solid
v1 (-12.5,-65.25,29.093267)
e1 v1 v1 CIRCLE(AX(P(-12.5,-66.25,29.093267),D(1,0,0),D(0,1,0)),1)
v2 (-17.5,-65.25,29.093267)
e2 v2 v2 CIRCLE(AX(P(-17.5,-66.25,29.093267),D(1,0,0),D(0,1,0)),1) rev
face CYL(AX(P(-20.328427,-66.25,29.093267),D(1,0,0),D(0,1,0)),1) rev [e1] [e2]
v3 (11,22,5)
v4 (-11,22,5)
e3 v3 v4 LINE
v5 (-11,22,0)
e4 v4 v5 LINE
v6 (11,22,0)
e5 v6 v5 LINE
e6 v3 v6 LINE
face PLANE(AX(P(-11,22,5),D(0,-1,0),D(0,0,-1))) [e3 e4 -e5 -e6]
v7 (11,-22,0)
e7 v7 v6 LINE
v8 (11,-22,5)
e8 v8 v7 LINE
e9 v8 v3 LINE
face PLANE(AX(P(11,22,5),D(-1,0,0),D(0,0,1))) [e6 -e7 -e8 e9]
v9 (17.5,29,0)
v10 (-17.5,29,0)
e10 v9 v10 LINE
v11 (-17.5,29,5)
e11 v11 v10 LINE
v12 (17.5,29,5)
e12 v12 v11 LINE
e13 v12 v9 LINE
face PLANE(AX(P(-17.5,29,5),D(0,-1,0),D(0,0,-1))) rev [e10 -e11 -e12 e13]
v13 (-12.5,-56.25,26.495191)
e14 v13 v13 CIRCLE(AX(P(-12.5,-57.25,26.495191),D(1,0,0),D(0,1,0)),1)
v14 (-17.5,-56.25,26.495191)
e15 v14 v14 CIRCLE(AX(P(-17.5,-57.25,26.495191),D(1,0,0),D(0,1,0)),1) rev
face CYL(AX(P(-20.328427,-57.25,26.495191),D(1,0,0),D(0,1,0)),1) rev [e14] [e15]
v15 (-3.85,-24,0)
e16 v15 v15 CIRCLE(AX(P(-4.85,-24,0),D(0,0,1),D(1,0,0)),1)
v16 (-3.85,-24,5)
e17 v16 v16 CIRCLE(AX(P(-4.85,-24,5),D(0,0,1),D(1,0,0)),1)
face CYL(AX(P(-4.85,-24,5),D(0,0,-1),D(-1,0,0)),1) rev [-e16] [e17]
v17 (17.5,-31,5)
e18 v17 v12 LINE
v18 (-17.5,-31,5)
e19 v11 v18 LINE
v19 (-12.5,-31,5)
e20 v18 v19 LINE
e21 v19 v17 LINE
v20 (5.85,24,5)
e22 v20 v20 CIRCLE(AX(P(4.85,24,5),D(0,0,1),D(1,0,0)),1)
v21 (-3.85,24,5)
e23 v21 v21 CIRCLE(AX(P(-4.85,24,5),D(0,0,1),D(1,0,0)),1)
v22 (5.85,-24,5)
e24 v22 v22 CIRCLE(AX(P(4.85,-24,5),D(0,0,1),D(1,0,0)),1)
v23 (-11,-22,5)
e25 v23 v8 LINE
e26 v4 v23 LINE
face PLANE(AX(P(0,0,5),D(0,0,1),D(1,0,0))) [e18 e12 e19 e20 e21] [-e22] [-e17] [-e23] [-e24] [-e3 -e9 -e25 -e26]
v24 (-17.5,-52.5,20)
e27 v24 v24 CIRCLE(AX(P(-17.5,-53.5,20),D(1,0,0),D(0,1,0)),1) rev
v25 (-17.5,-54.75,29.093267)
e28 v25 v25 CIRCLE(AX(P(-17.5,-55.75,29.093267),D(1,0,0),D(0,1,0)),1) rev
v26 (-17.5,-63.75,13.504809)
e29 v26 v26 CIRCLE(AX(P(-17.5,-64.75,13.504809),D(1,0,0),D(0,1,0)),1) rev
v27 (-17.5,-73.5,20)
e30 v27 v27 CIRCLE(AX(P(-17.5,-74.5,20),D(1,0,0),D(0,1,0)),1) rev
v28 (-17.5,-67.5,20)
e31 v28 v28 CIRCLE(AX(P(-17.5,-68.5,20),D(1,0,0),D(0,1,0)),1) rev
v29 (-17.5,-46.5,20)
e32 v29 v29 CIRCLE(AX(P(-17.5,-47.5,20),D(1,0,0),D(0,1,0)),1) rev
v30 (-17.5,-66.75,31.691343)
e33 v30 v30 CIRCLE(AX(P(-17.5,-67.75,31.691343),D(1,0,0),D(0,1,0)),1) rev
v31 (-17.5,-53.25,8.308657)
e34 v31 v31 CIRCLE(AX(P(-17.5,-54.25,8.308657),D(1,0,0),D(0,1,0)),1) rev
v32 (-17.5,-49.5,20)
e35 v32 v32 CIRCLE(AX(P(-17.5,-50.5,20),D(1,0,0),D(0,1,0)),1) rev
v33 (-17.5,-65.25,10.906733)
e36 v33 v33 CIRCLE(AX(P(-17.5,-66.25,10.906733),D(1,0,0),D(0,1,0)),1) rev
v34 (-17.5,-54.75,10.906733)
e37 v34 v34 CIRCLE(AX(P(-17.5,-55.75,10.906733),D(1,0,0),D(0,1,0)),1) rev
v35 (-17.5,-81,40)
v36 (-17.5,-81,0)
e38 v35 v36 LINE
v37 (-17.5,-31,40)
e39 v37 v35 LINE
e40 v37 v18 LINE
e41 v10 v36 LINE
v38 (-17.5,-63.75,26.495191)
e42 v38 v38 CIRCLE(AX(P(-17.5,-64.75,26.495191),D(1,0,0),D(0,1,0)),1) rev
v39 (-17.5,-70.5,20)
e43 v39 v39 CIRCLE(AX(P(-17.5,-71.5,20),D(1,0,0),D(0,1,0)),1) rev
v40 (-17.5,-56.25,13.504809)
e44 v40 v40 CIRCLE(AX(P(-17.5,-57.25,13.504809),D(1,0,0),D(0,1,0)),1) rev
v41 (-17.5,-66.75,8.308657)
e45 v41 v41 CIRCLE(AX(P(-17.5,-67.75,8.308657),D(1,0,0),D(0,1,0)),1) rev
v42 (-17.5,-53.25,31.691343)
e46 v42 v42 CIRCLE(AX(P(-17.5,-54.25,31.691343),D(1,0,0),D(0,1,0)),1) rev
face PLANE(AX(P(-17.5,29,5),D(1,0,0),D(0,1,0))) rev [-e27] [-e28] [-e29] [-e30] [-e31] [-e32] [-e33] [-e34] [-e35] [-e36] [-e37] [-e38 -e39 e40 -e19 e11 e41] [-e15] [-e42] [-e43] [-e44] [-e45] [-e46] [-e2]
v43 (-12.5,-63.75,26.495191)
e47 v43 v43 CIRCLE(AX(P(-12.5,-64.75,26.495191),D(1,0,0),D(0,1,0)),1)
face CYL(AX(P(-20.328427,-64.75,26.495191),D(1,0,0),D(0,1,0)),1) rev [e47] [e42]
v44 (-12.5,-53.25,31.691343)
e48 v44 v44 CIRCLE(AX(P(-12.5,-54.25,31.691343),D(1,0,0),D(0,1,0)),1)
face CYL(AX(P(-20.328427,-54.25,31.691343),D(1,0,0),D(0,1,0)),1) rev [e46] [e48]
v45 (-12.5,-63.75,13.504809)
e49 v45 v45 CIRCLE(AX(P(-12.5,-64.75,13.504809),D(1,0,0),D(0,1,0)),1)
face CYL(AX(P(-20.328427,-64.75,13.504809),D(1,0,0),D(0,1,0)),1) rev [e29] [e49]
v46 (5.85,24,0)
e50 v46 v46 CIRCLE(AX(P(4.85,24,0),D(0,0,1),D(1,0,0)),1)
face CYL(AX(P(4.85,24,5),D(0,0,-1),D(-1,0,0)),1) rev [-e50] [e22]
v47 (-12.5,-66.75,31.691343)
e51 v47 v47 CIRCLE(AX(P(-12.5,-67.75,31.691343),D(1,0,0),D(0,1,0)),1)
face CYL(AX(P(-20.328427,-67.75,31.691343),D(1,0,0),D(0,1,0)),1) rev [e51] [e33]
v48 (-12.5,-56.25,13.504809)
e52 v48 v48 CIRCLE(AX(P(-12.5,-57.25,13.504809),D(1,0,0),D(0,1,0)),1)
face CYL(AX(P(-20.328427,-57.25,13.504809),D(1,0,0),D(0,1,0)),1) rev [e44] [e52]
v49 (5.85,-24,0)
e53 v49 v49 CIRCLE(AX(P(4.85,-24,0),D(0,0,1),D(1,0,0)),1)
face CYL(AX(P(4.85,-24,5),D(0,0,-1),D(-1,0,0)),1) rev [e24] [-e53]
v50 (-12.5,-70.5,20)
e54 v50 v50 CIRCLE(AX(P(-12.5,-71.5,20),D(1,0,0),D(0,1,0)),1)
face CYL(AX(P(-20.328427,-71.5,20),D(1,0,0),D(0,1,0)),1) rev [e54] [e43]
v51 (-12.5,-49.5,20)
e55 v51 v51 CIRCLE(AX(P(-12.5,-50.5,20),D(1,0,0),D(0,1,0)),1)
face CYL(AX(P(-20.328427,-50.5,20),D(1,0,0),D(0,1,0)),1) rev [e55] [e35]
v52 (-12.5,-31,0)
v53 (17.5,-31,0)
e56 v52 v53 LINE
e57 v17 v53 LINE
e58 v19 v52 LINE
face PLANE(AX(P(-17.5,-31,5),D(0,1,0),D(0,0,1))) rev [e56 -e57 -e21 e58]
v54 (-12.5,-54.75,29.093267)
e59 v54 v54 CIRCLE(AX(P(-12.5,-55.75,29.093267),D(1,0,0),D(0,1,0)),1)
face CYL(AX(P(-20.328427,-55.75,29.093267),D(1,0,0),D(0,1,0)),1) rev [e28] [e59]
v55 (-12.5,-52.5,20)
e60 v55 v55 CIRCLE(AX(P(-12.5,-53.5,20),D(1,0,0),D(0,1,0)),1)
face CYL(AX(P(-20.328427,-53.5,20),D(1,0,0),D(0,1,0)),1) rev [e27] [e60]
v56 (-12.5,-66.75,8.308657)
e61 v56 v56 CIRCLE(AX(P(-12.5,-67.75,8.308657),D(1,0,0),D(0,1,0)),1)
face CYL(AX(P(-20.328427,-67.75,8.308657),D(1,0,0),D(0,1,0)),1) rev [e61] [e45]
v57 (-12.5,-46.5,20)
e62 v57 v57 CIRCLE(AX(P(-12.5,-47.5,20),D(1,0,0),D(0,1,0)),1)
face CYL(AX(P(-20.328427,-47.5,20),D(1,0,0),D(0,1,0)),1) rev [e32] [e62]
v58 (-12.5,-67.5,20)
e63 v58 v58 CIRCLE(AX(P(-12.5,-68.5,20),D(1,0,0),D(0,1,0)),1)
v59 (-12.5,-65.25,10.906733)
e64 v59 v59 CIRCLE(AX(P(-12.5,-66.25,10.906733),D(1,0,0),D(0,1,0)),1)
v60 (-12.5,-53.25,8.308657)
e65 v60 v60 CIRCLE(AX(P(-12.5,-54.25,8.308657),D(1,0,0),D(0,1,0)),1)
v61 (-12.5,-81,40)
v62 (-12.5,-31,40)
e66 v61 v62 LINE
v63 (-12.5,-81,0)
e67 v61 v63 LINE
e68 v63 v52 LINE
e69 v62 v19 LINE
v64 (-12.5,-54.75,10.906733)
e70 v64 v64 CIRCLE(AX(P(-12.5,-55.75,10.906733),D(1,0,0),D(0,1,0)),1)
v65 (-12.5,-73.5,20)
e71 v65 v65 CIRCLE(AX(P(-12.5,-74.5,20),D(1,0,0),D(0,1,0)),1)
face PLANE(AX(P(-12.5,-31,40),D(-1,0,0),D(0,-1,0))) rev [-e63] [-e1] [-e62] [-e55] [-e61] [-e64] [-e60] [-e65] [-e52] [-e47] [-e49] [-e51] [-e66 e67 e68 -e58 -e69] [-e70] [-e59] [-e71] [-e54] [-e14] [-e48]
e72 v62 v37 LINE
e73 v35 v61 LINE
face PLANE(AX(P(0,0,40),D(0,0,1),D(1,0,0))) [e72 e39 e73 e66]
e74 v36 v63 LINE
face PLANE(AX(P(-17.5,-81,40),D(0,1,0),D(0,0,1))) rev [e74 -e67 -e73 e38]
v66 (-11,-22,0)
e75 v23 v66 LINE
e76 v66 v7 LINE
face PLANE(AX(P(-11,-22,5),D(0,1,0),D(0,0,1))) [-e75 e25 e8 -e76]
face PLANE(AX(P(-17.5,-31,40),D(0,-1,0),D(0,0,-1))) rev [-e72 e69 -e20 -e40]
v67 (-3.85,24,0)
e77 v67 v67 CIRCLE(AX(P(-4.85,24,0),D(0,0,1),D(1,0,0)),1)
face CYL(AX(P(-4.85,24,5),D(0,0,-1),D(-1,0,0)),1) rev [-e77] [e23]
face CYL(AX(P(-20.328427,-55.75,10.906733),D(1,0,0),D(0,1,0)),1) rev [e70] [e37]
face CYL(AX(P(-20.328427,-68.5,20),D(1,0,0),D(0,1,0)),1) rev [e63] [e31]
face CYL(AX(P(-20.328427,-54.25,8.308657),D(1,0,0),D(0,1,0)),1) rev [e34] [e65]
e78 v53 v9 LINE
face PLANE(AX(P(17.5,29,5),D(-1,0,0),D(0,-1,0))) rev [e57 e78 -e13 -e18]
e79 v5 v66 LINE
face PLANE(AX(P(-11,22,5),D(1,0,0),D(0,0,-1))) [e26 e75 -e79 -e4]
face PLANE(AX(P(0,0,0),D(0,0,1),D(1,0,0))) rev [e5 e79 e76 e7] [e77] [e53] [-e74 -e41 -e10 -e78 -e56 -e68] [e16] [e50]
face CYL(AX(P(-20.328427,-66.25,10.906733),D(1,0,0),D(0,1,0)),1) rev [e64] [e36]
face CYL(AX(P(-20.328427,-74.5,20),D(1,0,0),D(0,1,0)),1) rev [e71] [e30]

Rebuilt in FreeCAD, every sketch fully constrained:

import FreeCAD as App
import Part
import Sketcher
from FreeCAD import Vector

doc = App.newDocument("Part")
body = doc.addObject("PartDesign::Body", "Body")

# Sketch on XY plane
sketch1 = doc.addObject("Sketcher::SketchObject", "Sketch")
body.addObject(sketch1)
sketch1.AttachmentSupport = (doc.XY_Plane, [""])
sketch1.MapMode = "FlatFace"
sketch1.addGeometry([
    Part.LineSegment(Vector(-17.5, 29, 0), Vector(-17.5, -31, 0)),  # 0
    Part.LineSegment(Vector(-17.5, -31, 0), Vector(17.5, -31, 0)),  # 1
    Part.LineSegment(Vector(17.5, -31, 0), Vector(17.5, 29, 0)),  # 2
    Part.LineSegment(Vector(17.5, 29, 0), Vector(-17.5, 29, 0)),  # 3
    Part.Circle(Vector(-4.8, -24, 0), Vector(0, 0, 1), 1),  # 4
    Part.Circle(Vector(4.8, -24, 0), Vector(0, 0, 1), 1),  # 5
    Part.Circle(Vector(-4.8, 24, 0), Vector(0, 0, 1), 1),  # 6
    Part.LineSegment(Vector(11, -22, 0), Vector(-11, -22, 0)),  # 7
    Part.LineSegment(Vector(-11, -22, 0), Vector(-11, 22, 0)),  # 8
    Part.LineSegment(Vector(-11, 22, 0), Vector(11, 22, 0)),  # 9
    Part.LineSegment(Vector(11, 22, 0), Vector(11, -22, 0)),  # 10
    Part.Circle(Vector(4.8, 24, 0), Vector(0, 0, 1), 1),  # 11
], False)
sketch1.addConstraint([
    Sketcher.Constraint("Coincident", 0, 2, 1, 1),
    Sketcher.Constraint("Coincident", 1, 2, 2, 1),
    Sketcher.Constraint("Coincident", 2, 2, 3, 1),
    Sketcher.Constraint("Coincident", 3, 2, 0, 1),
    Sketcher.Constraint("Coincident", 7, 2, 8, 1),
    Sketcher.Constraint("Coincident", 8, 2, 9, 1),
    Sketcher.Constraint("Coincident", 9, 2, 10, 1),
    Sketcher.Constraint("Coincident", 10, 2, 7, 1),
    Sketcher.Constraint("Vertical", 0),
    Sketcher.Constraint("Horizontal", 1),
    Sketcher.Constraint("Vertical", 2),
    Sketcher.Constraint("Horizontal", 3),
    Sketcher.Constraint("Horizontal", 7),
    Sketcher.Constraint("Vertical", 8),
    Sketcher.Constraint("Horizontal", 9),
    Sketcher.Constraint("Vertical", 10),
    Sketcher.Constraint("Equal", 4, 5),
    Sketcher.Constraint("Equal", 5, 6),
    Sketcher.Constraint("Equal", 6, 11),
    Sketcher.Constraint("Symmetric", 5, 3, 6, 3, -1, 1),
    Sketcher.Constraint("Symmetric", 4, 3, 11, 3, -1, 1),
    Sketcher.Constraint("Symmetric", 7, 2, 9, 2, -1, 1),
    Sketcher.Constraint("Symmetric", 4, 3, 5, 3, -2),
    Sketcher.Constraint("Diameter", 4, 2.0),
    Sketcher.Constraint("DistanceX", 1, 1, 1, 2, 35.0),
    Sketcher.Constraint("DistanceX", 7, 2, 7, 1, 22.0),
    Sketcher.Constraint("DistanceY", 0, 2, 0, 1, 60.0),
    Sketcher.Constraint("DistanceY", 8, 1, 8, 2, 44.0),
    Sketcher.Constraint("DistanceY", 4, 3, -1, 1, 24.0),
    Sketcher.Constraint("DistanceY", 0, 2, -1, 1, 31.0),
    Sketcher.Constraint("DistanceX", 0, 2, -1, 1, 17.5),
    Sketcher.Constraint("DistanceX", 4, 3, 5, 3, 9.7),
])
pad1 = doc.addObject("PartDesign::Pad", "Pad")
body.addObject(pad1)
pad1.Profile = sketch1
pad1.Length = 5

# Sketch on XY plane
sketch2 = doc.addObject("Sketcher::SketchObject", "Sketch001")
body.addObject(sketch2)
sketch2.AttachmentSupport = (doc.XY_Plane, [""])
sketch2.MapMode = "FlatFace"
sketch2.addGeometry([
    Part.LineSegment(Vector(-18, -31, 0), Vector(-18, -81, 0)),
    Part.LineSegment(Vector(-18, -81, 0), Vector(-12, -81, 0)),
    Part.LineSegment(Vector(-12, -81, 0), Vector(-12, -31, 0)),
    Part.LineSegment(Vector(-12, -31, 0), Vector(-18, -31, 0)),
], False)
sketch2.addConstraint([
    Sketcher.Constraint("Coincident", 0, 2, 1, 1),
    Sketcher.Constraint("Coincident", 1, 2, 2, 1),
    Sketcher.Constraint("Coincident", 2, 2, 3, 1),
    Sketcher.Constraint("Coincident", 3, 2, 0, 1),
    Sketcher.Constraint("Vertical", 0),
    Sketcher.Constraint("Horizontal", 1),
    Sketcher.Constraint("Vertical", 2),
    Sketcher.Constraint("Horizontal", 3),
    Sketcher.Constraint("DistanceX", 1, 1, 1, 2, 5.0),
    Sketcher.Constraint("DistanceY", 0, 2, 0, 1, 50.0),
    Sketcher.Constraint("DistanceY", 0, 2, -1, 1, 81.0),
    Sketcher.Constraint("DistanceX", 0, 2, -1, 1, 17.5),
])
pad2 = doc.addObject("PartDesign::Pad", "Pad001")
body.addObject(pad2)
pad2.Profile = sketch2
pad2.Length = 40

# Sketch on YZ plane
sketch3 = doc.addObject("Sketcher::SketchObject", "Sketch002")
body.addObject(sketch3)
sketch3.AttachmentSupport = (doc.YZ_Plane, [""])
sketch3.MapMode = "FlatFace"
sketch3.AttachmentOffset = App.Placement(Vector(0, 0, -12.5), App.Rotation())
sketch3.addGeometry([
    Part.Circle(Vector(-74.5, 20, 0), Vector(0, 0, 1), 1),  # 0
    Part.Circle(Vector(-71.5, 20, 0), Vector(0, 0, 1), 1),  # 1
    Part.Circle(Vector(-68.5, 20, 0), Vector(0, 0, 1), 1),  # 2
    Part.Circle(Vector(-64.8, 26.5, 0), Vector(0, 0, 1), 1),  # 3
    Part.Circle(Vector(-66.2, 29.1, 0), Vector(0, 0, 1), 1),  # 4
    Part.Circle(Vector(-67.8, 31.7, 0), Vector(0, 0, 1), 1),  # 5
    Part.Circle(Vector(-57.2, 26.5, 0), Vector(0, 0, 1), 1),  # 6
    Part.Circle(Vector(-55.8, 29.1, 0), Vector(0, 0, 1), 1),  # 7
    Part.Circle(Vector(-54.2, 31.7, 0), Vector(0, 0, 1), 1),  # 8
    Part.Circle(Vector(-53.5, 20, 0), Vector(0, 0, 1), 1),  # 9
    Part.Circle(Vector(-50.5, 20, 0), Vector(0, 0, 1), 1),  # 10
    Part.Circle(Vector(-47.5, 20, 0), Vector(0, 0, 1), 1),  # 11
    Part.Circle(Vector(-57.2, 13.5, 0), Vector(0, 0, 1), 1),  # 12
    Part.Circle(Vector(-55.8, 10.9, 0), Vector(0, 0, 1), 1),  # 13
    Part.Circle(Vector(-54.2, 8.3, 0), Vector(0, 0, 1), 1),  # 14
    Part.Circle(Vector(-64.8, 13.5, 0), Vector(0, 0, 1), 1),  # 15
    Part.Circle(Vector(-66.2, 10.9, 0), Vector(0, 0, 1), 1),  # 16
    Part.Circle(Vector(-67.8, 8.3, 0), Vector(0, 0, 1), 1),  # 17
], False)
sketch3.addConstraint([
    Sketcher.Constraint("Equal", 0, 1),
    Sketcher.Constraint("Equal", 1, 2),
    Sketcher.Constraint("Equal", 2, 3),
    Sketcher.Constraint("Equal", 3, 4),
    Sketcher.Constraint("Equal", 4, 5),
    Sketcher.Constraint("Equal", 5, 6),
    Sketcher.Constraint("Equal", 6, 7),
    Sketcher.Constraint("Equal", 7, 8),
    Sketcher.Constraint("Equal", 8, 9),
    Sketcher.Constraint("Equal", 9, 10),
    Sketcher.Constraint("Equal", 10, 11),
    Sketcher.Constraint("Equal", 11, 12),
    Sketcher.Constraint("Equal", 12, 13),
    Sketcher.Constraint("Equal", 13, 14),
    Sketcher.Constraint("Equal", 14, 15),
    Sketcher.Constraint("Equal", 15, 16),
    Sketcher.Constraint("Equal", 16, 17),
    Sketcher.Constraint("Horizontal", 0, 3, 1, 3),
    Sketcher.Constraint("Horizontal", 1, 3, 2, 3),
    Sketcher.Constraint("Horizontal", 3, 3, 6, 3),
    Sketcher.Constraint("Horizontal", 4, 3, 7, 3),
    Sketcher.Constraint("Horizontal", 5, 3, 8, 3),
    Sketcher.Constraint("Horizontal", 2, 3, 9, 3),
    Sketcher.Constraint("Horizontal", 9, 3, 10, 3),
    Sketcher.Constraint("Horizontal", 10, 3, 11, 3),
    Sketcher.Constraint("Horizontal", 12, 3, 15, 3),
    Sketcher.Constraint("Horizontal", 13, 3, 16, 3),
    Sketcher.Constraint("Horizontal", 14, 3, 17, 3),
    Sketcher.Constraint("Vertical", 6, 3, 12, 3),
    Sketcher.Constraint("Vertical", 7, 3, 13, 3),
    Sketcher.Constraint("Vertical", 8, 3, 14, 3),
    Sketcher.Constraint("Vertical", 3, 3, 15, 3),
    Sketcher.Constraint("Vertical", 4, 3, 16, 3),
    Sketcher.Constraint("Vertical", 5, 3, 17, 3),
    Sketcher.Constraint("Diameter", 0, 2.0),
    Sketcher.Constraint("DistanceY", -1, 1, 0, 3, 20.0),
    Sketcher.Constraint("DistanceX", 0, 3, 1, 3, 3.0),
    Sketcher.Constraint("DistanceX", 1, 3, 2, 3, 3.0),
    Sketcher.Constraint("DistanceX", 5, 3, 3, 3, 3.0),
    Sketcher.Constraint("DistanceX", 4, 3, 6, 3, 9.0),
    Sketcher.Constraint("DistanceX", 3, 3, 7, 3, 9.0),
    Sketcher.Constraint("DistanceX", 6, 3, 8, 3, 3.0),
    Sketcher.Constraint("DistanceX", 2, 3, 9, 3, 15.0),
    Sketcher.Constraint("DistanceX", 9, 3, 10, 3, 3.0),
    Sketcher.Constraint("DistanceX", 10, 3, 11, 3, 3.0),
    Sketcher.Constraint("DistanceX", 0, 3, -1, 1, 74.5),
    Sketcher.Constraint("DistanceX", 4, 3, 3, 3, 1.5),
    Sketcher.Constraint("DistanceX", 3, 3, -1, 1, 64.75),
    Sketcher.Constraint("DistanceY", -1, 1, 3, 3, 26.495191),
    Sketcher.Constraint("DistanceY", -1, 1, 12, 3, 13.504809),
    Sketcher.Constraint("DistanceY", -1, 1, 4, 3, 29.093267),
    Sketcher.Constraint("DistanceY", -1, 1, 5, 3, 31.691343),
    Sketcher.Constraint("DistanceY", -1, 1, 13, 3, 10.906733),
    Sketcher.Constraint("DistanceY", -1, 1, 14, 3, 8.308657),
])
pocket1 = doc.addObject("PartDesign::Pocket", "Pocket")
body.addObject(pocket1)
pocket1.Profile = sketch3
pocket1.Length = 5

doc.recompute()
